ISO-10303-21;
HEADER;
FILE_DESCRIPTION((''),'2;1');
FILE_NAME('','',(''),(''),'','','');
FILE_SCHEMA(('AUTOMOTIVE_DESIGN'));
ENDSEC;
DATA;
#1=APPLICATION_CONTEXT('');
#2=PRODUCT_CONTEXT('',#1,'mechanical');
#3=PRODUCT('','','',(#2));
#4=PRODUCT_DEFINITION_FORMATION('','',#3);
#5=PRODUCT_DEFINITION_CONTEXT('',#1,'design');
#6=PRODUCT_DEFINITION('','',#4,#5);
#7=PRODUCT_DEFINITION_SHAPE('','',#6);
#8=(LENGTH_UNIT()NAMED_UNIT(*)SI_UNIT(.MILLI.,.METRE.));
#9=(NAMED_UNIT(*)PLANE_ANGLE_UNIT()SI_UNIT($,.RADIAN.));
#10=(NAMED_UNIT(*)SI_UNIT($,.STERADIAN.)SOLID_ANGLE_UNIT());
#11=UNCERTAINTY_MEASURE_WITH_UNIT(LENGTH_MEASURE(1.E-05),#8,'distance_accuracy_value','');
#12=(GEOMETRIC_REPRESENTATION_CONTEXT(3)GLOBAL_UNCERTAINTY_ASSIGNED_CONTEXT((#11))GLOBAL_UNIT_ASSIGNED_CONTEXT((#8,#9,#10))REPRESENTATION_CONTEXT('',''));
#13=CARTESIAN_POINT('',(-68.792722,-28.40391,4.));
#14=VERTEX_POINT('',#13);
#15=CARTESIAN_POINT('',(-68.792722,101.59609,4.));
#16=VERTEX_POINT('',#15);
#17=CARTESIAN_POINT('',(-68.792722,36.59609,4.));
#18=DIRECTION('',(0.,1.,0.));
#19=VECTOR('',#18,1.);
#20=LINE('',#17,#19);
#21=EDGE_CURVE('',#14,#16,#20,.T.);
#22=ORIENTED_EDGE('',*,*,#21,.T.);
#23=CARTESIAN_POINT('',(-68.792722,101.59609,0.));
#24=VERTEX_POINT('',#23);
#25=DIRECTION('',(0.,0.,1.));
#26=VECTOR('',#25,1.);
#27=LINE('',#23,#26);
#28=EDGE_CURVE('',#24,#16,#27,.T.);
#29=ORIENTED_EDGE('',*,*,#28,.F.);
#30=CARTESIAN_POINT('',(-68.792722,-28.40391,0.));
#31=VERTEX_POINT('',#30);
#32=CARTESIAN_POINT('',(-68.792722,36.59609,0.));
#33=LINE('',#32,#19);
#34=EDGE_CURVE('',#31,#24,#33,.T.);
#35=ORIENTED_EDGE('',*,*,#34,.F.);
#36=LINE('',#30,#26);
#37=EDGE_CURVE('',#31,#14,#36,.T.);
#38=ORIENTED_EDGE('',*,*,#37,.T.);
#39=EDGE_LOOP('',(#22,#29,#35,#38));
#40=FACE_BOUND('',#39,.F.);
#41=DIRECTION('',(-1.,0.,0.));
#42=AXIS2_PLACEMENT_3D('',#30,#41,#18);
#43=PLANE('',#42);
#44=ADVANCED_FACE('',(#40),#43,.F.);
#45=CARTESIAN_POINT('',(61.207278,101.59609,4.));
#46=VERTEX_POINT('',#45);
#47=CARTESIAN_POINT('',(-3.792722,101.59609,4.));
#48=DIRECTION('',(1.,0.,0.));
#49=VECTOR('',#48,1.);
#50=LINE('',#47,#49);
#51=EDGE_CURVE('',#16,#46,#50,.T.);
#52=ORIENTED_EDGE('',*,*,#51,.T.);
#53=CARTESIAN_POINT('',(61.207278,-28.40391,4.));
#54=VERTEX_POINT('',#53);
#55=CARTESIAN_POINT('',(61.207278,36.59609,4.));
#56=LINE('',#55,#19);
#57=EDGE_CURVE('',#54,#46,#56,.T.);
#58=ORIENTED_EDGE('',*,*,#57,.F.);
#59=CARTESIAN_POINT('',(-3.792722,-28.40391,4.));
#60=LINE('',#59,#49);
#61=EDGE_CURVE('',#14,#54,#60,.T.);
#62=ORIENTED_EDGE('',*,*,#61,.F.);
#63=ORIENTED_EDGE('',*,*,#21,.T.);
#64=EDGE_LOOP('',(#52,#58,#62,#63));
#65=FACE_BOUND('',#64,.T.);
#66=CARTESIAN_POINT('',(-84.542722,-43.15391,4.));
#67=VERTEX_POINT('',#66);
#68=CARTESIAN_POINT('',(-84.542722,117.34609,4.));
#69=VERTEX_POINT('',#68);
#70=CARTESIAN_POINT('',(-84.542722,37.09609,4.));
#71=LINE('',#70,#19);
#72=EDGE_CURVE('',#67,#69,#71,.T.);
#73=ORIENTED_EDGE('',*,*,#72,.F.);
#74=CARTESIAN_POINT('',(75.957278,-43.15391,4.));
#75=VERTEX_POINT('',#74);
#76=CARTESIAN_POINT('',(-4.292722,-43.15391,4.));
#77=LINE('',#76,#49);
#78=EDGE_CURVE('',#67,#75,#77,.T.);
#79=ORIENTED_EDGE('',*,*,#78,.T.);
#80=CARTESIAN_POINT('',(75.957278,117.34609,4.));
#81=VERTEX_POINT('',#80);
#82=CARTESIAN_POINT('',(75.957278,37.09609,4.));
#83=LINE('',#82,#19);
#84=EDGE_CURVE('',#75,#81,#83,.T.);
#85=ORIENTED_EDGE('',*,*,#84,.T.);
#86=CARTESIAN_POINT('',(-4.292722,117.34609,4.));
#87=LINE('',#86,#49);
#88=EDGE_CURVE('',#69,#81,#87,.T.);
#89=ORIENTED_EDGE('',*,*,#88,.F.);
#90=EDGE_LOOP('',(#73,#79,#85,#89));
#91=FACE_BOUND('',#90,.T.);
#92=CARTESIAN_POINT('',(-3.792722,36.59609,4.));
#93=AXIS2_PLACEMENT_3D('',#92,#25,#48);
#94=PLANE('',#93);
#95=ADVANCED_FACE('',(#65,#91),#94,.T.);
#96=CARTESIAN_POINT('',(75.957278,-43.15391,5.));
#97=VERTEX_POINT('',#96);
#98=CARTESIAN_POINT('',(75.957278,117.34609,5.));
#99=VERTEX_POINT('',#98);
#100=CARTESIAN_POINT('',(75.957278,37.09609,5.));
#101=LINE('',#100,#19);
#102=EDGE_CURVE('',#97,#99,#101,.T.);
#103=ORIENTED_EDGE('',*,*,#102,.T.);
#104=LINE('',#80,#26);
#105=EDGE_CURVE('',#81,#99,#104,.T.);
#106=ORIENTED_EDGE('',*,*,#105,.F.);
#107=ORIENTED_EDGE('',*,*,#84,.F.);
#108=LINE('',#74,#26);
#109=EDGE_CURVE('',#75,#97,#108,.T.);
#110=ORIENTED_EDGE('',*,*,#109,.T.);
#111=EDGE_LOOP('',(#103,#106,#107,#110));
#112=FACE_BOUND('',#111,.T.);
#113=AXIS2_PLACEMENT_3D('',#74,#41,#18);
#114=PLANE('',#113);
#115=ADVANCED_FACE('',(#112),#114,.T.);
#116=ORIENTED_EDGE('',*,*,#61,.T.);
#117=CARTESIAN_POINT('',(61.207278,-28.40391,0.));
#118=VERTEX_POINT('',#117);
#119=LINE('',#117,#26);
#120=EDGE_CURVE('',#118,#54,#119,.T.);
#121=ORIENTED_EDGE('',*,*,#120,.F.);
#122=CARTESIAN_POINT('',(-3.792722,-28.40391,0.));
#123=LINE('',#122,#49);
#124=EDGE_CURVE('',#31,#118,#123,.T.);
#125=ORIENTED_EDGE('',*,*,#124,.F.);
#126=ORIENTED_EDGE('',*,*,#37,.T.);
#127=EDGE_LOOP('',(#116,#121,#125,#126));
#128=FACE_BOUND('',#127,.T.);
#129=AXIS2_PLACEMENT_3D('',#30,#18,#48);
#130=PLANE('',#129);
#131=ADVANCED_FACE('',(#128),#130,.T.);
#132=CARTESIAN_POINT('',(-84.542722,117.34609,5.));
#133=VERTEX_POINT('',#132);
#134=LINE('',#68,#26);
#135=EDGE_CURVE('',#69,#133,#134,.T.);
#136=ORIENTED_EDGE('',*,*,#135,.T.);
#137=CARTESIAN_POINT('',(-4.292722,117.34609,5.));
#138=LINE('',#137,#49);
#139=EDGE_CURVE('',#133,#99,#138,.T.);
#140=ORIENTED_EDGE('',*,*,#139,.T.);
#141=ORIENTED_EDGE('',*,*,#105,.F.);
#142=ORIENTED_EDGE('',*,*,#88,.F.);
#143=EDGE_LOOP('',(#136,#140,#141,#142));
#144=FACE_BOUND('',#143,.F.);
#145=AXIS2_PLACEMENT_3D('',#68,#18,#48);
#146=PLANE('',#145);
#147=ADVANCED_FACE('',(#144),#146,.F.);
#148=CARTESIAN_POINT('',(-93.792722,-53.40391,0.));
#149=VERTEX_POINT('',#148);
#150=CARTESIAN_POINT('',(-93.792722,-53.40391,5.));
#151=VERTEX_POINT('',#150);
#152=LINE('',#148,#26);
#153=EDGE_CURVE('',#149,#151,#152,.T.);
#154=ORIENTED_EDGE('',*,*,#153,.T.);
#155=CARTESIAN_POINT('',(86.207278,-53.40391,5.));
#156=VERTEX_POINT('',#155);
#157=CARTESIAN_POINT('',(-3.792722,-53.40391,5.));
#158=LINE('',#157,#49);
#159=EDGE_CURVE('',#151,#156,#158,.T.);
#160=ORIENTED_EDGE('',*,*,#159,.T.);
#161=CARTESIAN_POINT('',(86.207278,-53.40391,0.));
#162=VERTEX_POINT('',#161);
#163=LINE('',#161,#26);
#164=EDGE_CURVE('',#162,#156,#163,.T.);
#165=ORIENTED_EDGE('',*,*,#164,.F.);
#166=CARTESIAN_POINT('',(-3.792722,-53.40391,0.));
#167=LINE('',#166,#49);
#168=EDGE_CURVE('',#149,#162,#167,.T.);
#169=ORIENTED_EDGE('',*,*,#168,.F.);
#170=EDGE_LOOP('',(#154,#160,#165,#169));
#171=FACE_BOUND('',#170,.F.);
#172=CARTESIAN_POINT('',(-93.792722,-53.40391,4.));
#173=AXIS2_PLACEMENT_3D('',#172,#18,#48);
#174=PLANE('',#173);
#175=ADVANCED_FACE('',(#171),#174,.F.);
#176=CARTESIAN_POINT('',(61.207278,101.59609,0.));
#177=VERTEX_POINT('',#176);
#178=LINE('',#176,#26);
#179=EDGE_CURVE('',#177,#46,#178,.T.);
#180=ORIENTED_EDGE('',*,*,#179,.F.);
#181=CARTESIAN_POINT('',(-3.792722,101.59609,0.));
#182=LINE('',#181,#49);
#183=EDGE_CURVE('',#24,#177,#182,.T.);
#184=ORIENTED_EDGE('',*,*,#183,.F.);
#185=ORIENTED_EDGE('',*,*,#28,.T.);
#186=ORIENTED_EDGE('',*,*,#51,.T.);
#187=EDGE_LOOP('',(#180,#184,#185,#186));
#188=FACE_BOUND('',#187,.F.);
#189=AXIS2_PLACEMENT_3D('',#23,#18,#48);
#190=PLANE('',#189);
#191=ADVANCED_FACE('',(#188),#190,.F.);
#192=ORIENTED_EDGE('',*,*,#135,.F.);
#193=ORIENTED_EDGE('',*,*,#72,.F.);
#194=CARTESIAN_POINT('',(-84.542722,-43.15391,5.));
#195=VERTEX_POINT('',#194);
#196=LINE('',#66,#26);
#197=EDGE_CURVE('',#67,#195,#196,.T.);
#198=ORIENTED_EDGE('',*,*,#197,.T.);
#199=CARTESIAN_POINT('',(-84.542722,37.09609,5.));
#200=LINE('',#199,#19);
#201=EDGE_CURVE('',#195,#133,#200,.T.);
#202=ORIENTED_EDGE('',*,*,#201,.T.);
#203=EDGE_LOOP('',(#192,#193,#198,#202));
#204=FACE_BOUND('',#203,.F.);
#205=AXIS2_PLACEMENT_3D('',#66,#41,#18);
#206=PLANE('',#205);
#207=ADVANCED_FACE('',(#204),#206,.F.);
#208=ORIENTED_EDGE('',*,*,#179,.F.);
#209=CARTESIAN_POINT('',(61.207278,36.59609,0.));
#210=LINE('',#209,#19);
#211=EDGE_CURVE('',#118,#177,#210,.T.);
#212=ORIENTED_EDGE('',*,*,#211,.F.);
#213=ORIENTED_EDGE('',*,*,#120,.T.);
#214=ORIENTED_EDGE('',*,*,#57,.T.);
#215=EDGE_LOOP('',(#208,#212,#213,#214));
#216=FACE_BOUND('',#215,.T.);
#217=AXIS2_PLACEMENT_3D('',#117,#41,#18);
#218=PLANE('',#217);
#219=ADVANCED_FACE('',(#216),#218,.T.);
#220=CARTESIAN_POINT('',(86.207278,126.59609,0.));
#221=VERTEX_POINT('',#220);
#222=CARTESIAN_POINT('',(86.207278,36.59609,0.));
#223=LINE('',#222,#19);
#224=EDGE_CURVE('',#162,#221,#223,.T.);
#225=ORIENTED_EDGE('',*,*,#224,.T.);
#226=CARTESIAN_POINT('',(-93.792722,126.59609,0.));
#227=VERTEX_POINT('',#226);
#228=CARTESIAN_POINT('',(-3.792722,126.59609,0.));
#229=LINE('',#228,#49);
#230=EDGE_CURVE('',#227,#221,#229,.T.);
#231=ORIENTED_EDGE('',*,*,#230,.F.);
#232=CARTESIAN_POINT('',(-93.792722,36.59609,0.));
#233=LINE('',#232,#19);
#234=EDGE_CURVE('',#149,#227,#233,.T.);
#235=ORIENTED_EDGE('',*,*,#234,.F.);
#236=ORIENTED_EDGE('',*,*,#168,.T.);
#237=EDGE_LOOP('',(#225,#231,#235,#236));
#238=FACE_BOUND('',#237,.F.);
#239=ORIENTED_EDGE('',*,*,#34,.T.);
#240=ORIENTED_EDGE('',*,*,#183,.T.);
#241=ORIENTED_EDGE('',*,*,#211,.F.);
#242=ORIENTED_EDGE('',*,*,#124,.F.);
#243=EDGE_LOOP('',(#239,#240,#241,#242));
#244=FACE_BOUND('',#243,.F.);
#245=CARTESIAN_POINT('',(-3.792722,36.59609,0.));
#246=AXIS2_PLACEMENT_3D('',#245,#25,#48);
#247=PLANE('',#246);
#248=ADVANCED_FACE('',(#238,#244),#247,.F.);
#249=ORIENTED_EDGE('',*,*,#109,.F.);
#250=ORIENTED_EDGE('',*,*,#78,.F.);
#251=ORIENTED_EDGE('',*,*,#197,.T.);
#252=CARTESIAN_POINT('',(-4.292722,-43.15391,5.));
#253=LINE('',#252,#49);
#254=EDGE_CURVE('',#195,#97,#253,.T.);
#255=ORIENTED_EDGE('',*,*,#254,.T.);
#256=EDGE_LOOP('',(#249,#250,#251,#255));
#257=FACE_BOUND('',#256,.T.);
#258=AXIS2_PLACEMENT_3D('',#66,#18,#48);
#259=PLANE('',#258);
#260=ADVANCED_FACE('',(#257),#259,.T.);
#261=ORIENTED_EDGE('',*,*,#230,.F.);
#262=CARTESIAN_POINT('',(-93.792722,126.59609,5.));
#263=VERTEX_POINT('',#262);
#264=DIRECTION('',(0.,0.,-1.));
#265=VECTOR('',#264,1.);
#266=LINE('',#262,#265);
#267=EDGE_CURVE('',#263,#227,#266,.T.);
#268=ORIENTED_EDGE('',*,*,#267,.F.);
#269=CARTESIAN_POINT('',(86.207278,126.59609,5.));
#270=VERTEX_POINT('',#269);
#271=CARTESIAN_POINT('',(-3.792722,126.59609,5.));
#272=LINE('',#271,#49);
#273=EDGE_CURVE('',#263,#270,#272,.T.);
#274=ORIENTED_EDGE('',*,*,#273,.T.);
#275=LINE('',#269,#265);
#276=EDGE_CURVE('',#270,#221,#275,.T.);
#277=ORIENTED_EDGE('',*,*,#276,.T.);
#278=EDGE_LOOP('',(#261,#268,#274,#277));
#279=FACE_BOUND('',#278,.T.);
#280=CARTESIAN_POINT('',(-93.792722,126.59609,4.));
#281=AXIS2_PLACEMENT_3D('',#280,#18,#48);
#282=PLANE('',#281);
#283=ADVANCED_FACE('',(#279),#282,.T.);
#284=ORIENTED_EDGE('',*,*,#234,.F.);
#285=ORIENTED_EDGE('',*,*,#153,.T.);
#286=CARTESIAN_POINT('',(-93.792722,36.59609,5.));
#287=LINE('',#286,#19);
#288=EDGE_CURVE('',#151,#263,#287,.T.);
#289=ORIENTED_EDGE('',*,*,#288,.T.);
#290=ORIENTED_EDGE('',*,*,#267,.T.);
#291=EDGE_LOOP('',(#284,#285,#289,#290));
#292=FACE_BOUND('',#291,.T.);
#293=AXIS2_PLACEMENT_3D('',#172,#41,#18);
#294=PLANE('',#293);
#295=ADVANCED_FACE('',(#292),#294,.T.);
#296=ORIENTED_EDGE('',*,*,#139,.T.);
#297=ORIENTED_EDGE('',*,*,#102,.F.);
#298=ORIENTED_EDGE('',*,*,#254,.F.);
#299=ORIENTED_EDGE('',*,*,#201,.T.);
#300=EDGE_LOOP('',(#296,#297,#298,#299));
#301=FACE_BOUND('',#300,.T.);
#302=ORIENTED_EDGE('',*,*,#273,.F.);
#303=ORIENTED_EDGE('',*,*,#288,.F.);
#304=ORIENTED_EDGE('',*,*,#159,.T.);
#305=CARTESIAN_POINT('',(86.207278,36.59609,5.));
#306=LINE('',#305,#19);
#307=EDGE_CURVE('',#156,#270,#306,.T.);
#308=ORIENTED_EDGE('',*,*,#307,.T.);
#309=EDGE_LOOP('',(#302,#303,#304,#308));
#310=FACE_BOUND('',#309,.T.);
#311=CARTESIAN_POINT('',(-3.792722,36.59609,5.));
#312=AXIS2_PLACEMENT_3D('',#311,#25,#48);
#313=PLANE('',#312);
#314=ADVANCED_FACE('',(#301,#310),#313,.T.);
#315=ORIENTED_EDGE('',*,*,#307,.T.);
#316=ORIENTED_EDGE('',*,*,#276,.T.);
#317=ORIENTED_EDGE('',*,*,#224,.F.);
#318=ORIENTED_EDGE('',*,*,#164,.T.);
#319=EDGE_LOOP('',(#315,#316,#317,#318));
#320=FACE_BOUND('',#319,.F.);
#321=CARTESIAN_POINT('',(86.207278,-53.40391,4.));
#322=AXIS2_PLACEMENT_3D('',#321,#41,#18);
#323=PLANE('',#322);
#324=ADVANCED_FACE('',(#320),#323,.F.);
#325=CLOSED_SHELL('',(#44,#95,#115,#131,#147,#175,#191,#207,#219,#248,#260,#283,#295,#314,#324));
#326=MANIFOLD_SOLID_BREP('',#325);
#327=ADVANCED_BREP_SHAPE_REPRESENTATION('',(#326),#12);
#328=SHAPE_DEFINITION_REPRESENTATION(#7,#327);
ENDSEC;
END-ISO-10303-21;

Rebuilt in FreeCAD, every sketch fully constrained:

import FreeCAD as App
import Part
import Sketcher

V = App.Vector
Q = App.Units.Quantity

doc = App.newDocument("Part")
body = doc.addObject("PartDesign::Body", "Body")

# Sketch on XY plane
sketch1 = doc.addObject("Sketcher::SketchObject", "Sketch")
body.addObject(sketch1)
sketch1.AttachmentSupport = (doc.XY_Plane, [""])
sketch1.MapMode = "FlatFace"
sketch1.addGeometry(Part.LineSegment(V(-93.792722, 126.59609, 0), V(-93.792722, -53.40391, 0)), False)
sketch1.addGeometry(Part.LineSegment(V(-93.792722, -53.40391, 0), V(86.207278, -53.40391, 0)), False)
sketch1.addGeometry(Part.LineSegment(V(86.207278, -53.40391, 0), V(86.207278, 126.59609, 0)), False)
sketch1.addGeometry(Part.LineSegment(V(86.207278, 126.59609, 0), V(-93.792722, 126.59609, 0)), False)
sketch1.addGeometry(Part.LineSegment(V(61.207278, -28.40391, 0), V(-68.792722, -28.40391, 0)), False)
sketch1.addGeometry(Part.LineSegment(V(-68.792722, -28.40391, 0), V(-68.792722, 101.59609, 0)), False)
sketch1.addGeometry(Part.LineSegment(V(-68.792722, 101.59609, 0), V(61.207278, 101.59609, 0)), False)
sketch1.addGeometry(Part.LineSegment(V(61.207278, 101.59609, 0), V(61.207278, -28.40391, 0)), False)
sketch1.addConstraint(Sketcher.Constraint("Coincident", 0, 2, 1, 1))
sketch1.addConstraint(Sketcher.Constraint("Coincident", 1, 2, 2, 1))
sketch1.addConstraint(Sketcher.Constraint("Coincident", 2, 2, 3, 1))
sketch1.addConstraint(Sketcher.Constraint("Coincident", 3, 2, 0, 1))
sketch1.addConstraint(Sketcher.Constraint("Coincident", 4, 2, 5, 1))
sketch1.addConstraint(Sketcher.Constraint("Coincident", 5, 2, 6, 1))
sketch1.addConstraint(Sketcher.Constraint("Coincident", 6, 2, 7, 1))
sketch1.addConstraint(Sketcher.Constraint("Coincident", 7, 2, 4, 1))
sketch1.addConstraint(Sketcher.Constraint("Vertical", 0))
sketch1.addConstraint(Sketcher.Constraint("Horizontal", 1))
sketch1.addConstraint(Sketcher.Constraint("Vertical", 2))
sketch1.addConstraint(Sketcher.Constraint("Horizontal", 3))
sketch1.addConstraint(Sketcher.Constraint("Horizontal", 4))
sketch1.addConstraint(Sketcher.Constraint("Vertical", 5))
sketch1.addConstraint(Sketcher.Constraint("Horizontal", 6))
sketch1.addConstraint(Sketcher.Constraint("Vertical", 7))
sketch1.addConstraint(Sketcher.Constraint("Equal", 3, 0))
sketch1.addConstraint(Sketcher.Constraint("Equal", 6, 5))
sketch1.addConstraint(Sketcher.Constraint("DistanceX", 1, 1, 1, 2, Q("180 mm")))
sketch1.addConstraint(Sketcher.Constraint("DistanceX", 4, 2, 4, 1, Q("130 mm")))
sketch1.addConstraint(Sketcher.Constraint("DistanceX", 0, 2, 4, 2, Q("25 mm")))
sketch1.addConstraint(Sketcher.Constraint("DistanceY", 0, 2, 4, 2, Q("25 mm")))
sketch1.addConstraint(Sketcher.Constraint("DistanceX", 0, 2, -1, 1, Q("93.792722 mm")))
sketch1.addConstraint(Sketcher.Constraint("DistanceY", 0, 2, -1, 1, Q("53.40391 mm")))
pad1 = doc.addObject("PartDesign::Pad", "Pad")
body.addObject(pad1)
pad1.Profile = sketch1
pad1.Length = 4

# Sketch on XY plane
sketch2 = doc.addObject("Sketcher::SketchObject", "Sketch001")
body.addObject(sketch2)
sketch2.AttachmentSupport = (doc.XY_Plane, [""])
sketch2.MapMode = "FlatFace"
sketch2.AttachmentOffset = App.Placement(V(0, 0, 4), App.Rotation())
sketch2.addGeometry(Part.LineSegment(V(-93.792722, 126.59609, 0), V(-93.792722, -53.40391, 0)), False)
sketch2.addGeometry(Part.LineSegment(V(-93.792722, -53.40391, 0), V(86.207278, -53.40391, 0)), False)
sketch2.addGeometry(Part.LineSegment(V(86.207278, -53.40391, 0), V(86.207278, 126.59609, 0)), False)
sketch2.addGeometry(Part.LineSegment(V(86.207278, 126.59609, 0), V(-93.792722, 126.59609, 0)), False)
sketch2.addGeometry(Part.LineSegment(V(75.957278, -43.15391, 0), V(-84.542722, -43.15391, 0)), False)
sketch2.addGeometry(Part.LineSegment(V(-84.542722, -43.15391, 0), V(-84.542722, 117.34609, 0)), False)
sketch2.addGeometry(Part.LineSegment(V(-84.542722, 117.34609, 0), V(75.957278, 117.34609, 0)), False)
sketch2.addGeometry(Part.LineSegment(V(75.957278, 117.34609, 0), V(75.957278, -43.15391, 0)), False)
sketch2.addConstraint(Sketcher.Constraint("Coincident", 0, 2, 1, 1))
sketch2.addConstraint(Sketcher.Constraint("Coincident", 1, 2, 2, 1))
sketch2.addConstraint(Sketcher.Constraint("Coincident", 2, 2, 3, 1))
sketch2.addConstraint(Sketcher.Constraint("Coincident", 3, 2, 0, 1))
sketch2.addConstraint(Sketcher.Constraint("Coincident", 4, 2, 5, 1))
sketch2.addConstraint(Sketcher.Constraint("Coincident", 5, 2, 6, 1))
sketch2.addConstraint(Sketcher.Constraint("Coincident", 6, 2, 7, 1))
sketch2.addConstraint(Sketcher.Constraint("Coincident", 7, 2, 4, 1))
sketch2.addConstraint(Sketcher.Constraint("Vertical", 0))
sketch2.addConstraint(Sketcher.Constraint("Horizontal", 1))
sketch2.addConstraint(Sketcher.Constraint("Vertical", 2))
sketch2.addConstraint(Sketcher.Constraint("Horizontal", 3))
sketch2.addConstraint(Sketcher.Constraint("Horizontal", 4))
sketch2.addConstraint(Sketcher.Constraint("Vertical", 5))
sketch2.addConstraint(Sketcher.Constraint("Horizontal", 6))
sketch2.addConstraint(Sketcher.Constraint("Vertical", 7))
sketch2.addConstraint(Sketcher.Constraint("Equal", 3, 0))
sketch2.addConstraint(Sketcher.Constraint("Equal", 6, 5))
sketch2.addConstraint(Sketcher.Constraint("DistanceX", 1, 1, 1, 2, Q("180 mm")))
sketch2.addConstraint(Sketcher.Constraint("DistanceX", 4, 2, 4, 1, Q("160.5 mm")))
sketch2.addConstraint(Sketcher.Constraint("DistanceX", 0, 2, 4, 2, Q("9.25 mm")))
sketch2.addConstraint(Sketcher.Constraint("DistanceY", 0, 2, 4, 2, Q("10.25 mm")))
sketch2.addConstraint(Sketcher.Constraint("DistanceX", 0, 2, -1, 1, Q("93.792722 mm")))
sketch2.addConstraint(Sketcher.Constraint("DistanceY", 0, 2, -1, 1, Q("53.40391 mm")))
pad2 = doc.addObject("PartDesign::Pad", "Pad001")
body.addObject(pad2)
pad2.Profile = sketch2
pad2.Length = 1

doc.recompute()
